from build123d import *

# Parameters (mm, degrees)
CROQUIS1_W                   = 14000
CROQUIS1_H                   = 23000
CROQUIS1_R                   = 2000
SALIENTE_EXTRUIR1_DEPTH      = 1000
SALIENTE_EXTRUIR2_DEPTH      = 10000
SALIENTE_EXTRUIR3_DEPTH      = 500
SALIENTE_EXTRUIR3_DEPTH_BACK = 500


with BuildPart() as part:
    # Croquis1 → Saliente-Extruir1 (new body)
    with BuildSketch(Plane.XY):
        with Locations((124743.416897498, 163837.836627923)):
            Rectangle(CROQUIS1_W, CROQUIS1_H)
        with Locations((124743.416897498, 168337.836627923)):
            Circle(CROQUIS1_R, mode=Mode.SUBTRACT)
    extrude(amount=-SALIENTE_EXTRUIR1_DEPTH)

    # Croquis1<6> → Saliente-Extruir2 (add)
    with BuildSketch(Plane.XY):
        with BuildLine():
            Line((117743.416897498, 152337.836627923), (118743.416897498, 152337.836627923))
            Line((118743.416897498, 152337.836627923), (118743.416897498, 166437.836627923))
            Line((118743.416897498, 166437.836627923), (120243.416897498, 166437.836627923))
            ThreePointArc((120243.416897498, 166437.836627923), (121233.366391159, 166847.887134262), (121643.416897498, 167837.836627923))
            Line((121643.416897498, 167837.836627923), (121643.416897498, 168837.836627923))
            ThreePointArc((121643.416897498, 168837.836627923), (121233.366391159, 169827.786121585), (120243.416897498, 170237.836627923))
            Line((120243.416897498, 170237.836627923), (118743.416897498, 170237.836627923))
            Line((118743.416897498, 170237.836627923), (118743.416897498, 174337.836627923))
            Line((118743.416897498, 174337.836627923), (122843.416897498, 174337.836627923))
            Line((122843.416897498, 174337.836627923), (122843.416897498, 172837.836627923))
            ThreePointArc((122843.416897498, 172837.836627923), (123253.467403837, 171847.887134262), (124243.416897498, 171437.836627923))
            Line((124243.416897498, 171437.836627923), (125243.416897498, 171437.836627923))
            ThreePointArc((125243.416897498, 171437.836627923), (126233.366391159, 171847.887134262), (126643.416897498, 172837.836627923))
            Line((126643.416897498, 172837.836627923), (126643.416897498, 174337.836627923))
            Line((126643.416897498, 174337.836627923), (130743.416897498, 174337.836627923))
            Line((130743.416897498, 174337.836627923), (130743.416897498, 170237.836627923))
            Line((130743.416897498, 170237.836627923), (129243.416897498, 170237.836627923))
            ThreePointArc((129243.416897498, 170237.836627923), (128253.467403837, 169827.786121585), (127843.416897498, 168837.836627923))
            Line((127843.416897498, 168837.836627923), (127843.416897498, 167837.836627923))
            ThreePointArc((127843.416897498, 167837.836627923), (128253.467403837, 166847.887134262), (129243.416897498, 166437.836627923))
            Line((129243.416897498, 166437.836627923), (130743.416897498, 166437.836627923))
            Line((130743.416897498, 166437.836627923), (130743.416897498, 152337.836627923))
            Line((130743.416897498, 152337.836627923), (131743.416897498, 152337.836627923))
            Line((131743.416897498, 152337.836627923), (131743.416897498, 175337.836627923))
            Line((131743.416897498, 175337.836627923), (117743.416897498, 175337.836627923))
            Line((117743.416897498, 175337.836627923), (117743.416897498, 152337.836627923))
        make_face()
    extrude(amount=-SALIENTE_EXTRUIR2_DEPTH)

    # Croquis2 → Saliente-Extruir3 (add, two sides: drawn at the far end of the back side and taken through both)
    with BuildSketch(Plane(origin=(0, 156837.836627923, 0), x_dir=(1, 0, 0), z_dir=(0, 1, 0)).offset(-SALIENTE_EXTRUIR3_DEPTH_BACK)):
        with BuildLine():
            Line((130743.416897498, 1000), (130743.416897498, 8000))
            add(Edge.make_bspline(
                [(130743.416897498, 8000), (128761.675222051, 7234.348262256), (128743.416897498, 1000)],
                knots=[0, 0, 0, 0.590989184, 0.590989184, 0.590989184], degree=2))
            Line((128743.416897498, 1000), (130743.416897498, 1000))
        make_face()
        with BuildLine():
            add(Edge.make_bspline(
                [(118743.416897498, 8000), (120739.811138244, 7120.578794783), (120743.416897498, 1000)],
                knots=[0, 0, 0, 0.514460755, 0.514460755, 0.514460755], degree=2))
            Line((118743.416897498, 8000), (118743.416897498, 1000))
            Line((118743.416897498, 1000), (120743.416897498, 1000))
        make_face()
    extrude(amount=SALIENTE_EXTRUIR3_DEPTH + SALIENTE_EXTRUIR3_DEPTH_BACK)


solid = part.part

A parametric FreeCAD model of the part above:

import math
import FreeCAD as App
import Part
import Sketcher
from FreeCAD import Vector
Q = App.Units.Quantity


def add_polygon(sketch, points):
    """Adds a closed chain of lines whose ends are joined by coincident constraints."""
    first, n = sketch.GeometryCount, len(points)
    for a, b in zip(points, points[1:] + points[:1]):
        sketch.addGeometry(Part.LineSegment(App.Vector(*a, 0), App.Vector(*b, 0)), False)
    for i in range(n):
        sketch.addConstraint(Sketcher.Constraint("Coincident", first + i, 2, first + (i + 1) % n, 1))

doc = App.newDocument("Part")
body = doc.addObject("PartDesign::Body", "Body")

# Sketch on XY plane
sketch1 = body.newObject("Sketcher::SketchObject", "Sketch")
sketch1.AttachmentSupport = (doc.getObject("XY_Plane"), [""])
sketch1.MapMode = "FlatFace"
add_polygon(sketch1, [(117743.416897, 175337.836628), (117743.416897, 152337.836628), (131743.416897, 152337.836628), (131743.416897, 175337.836628)])  # lines 0-3
sketch1.addGeometry(Part.Circle(Vector(124743.416897, 168337.836628, 0), Vector(0, 0, 1), 2000), False)  # 4
sketch1.addConstraint([
    Sketcher.Constraint("Vertical", 0),
    Sketcher.Constraint("Horizontal", 1),
    Sketcher.Constraint("Vertical", 2),
    Sketcher.Constraint("Horizontal", 3),
    Sketcher.Constraint("Diameter", 4, Q("4000 mm")),
    Sketcher.Constraint("DistanceX", 1, 1, 1, 2, Q("14000 mm")),
    Sketcher.Constraint("DistanceY", 0, 2, 0, 1, Q("23000 mm")),
    Sketcher.Constraint("DistanceX", 0, 2, 4, 3, Q("7000 mm")),
    Sketcher.Constraint("DistanceY", 0, 2, 4, 3, Q("16000 mm")),
    Sketcher.Constraint("DistanceX", -1, 1, 4, 3, Q("124743.416897 mm")),
    Sketcher.Constraint("DistanceY", -1, 1, 4, 3, Q("168337.836628 mm")),
])
pad1 = body.newObject("PartDesign::Pad", "Pad")
pad1.Profile = sketch1
pad1.Length = 1000
pad1.Reversed = True

# Sketch on XY plane
sketch2 = body.newObject("Sketcher::SketchObject", "Sketch001")
sketch2.AttachmentSupport = (doc.getObject("XY_Plane"), [""])
sketch2.MapMode = "FlatFace"
sketch2.addGeometry([
    Part.LineSegment(Vector(117743.416897, 152337.836628, 0), Vector(118743.416897, 152337.836628, 0)),  # 0
    Part.LineSegment(Vector(118743.416897, 152337.836628, 0), Vector(118743.416897, 166437.836628, 0)),  # 1
    Part.LineSegment(Vector(118743.416897, 166437.836628, 0), Vector(120243.416897, 166437.836628, 0)),  # 2
    Part.ArcOfCircle(Part.Circle(Vector(120243.416897, 167837.836628, 0), Vector(0, 0, 1), 1400), math.radians(-90), math.radians(0)),  # 3
    Part.LineSegment(Vector(121643.416897, 167837.836628, 0), Vector(121643.416897, 168837.836628, 0)),  # 4
    Part.ArcOfCircle(Part.Circle(Vector(120243.416897, 168837.836628, 0), Vector(0, 0, 1), 1400), math.radians(0), math.radians(90)),  # 5
    Part.LineSegment(Vector(120243.416897, 170237.836628, 0), Vector(118743.416897, 170237.836628, 0)),  # 6
    Part.LineSegment(Vector(118743.416897, 170237.836628, 0), Vector(118743.416897, 174337.836628, 0)),  # 7
    Part.LineSegment(Vector(118743.416897, 174337.836628, 0), Vector(122843.416897, 174337.836628, 0)),  # 8
    Part.LineSegment(Vector(122843.416897, 174337.836628, 0), Vector(122843.416897, 172837.836628, 0)),  # 9
    Part.ArcOfCircle(Part.Circle(Vector(124243.416897, 172837.836628, 0), Vector(0, 0, 1), 1400), math.radians(-180), math.radians(-90)),  # 10
    Part.LineSegment(Vector(124243.416897, 171437.836628, 0), Vector(125243.416897, 171437.836628, 0)),  # 11
    Part.ArcOfCircle(Part.Circle(Vector(125243.416897, 172837.836628, 0), Vector(0, 0, 1), 1400), math.radians(-90), math.radians(0)),  # 12
    Part.LineSegment(Vector(126643.416897, 172837.836628, 0), Vector(126643.416897, 174337.836628, 0)),  # 13
    Part.LineSegment(Vector(126643.416897, 174337.836628, 0), Vector(130743.416897, 174337.836628, 0)),  # 14
    Part.LineSegment(Vector(130743.416897, 174337.836628, 0), Vector(130743.416897, 170237.836628, 0)),  # 15
    Part.LineSegment(Vector(130743.416897, 170237.836628, 0), Vector(129243.416897, 170237.836628, 0)),  # 16
    Part.ArcOfCircle(Part.Circle(Vector(129243.416897, 168837.836628, 0), Vector(0, 0, 1), 1400), math.radians(90), math.radians(180)),  # 17
    Part.LineSegment(Vector(127843.416897, 168837.836628, 0), Vector(127843.416897, 167837.836628, 0)),  # 18
    Part.ArcOfCircle(Part.Circle(Vector(129243.416897, 167837.836628, 0), Vector(0, 0, 1), 1400), math.radians(-180), math.radians(-90)),  # 19
    Part.LineSegment(Vector(129243.416897, 166437.836628, 0), Vector(130743.416897, 166437.836628, 0)),  # 20
    Part.LineSegment(Vector(130743.416897, 166437.836628, 0), Vector(130743.416897, 152337.836628, 0)),  # 21
    Part.LineSegment(Vector(130743.416897, 152337.836628, 0), Vector(131743.416897, 152337.836628, 0)),  # 22
    Part.LineSegment(Vector(131743.416897, 152337.836628, 0), Vector(131743.416897, 175337.836628, 0)),  # 23
    Part.LineSegment(Vector(131743.416897, 175337.836628, 0), Vector(117743.416897, 175337.836628, 0)),  # 24
    Part.LineSegment(Vector(117743.416897, 175337.836628, 0), Vector(117743.416897, 152337.836628, 0)),  # 25
], False)
sketch2.addConstraint([
    Sketcher.Constraint("Coincident", 0, 2, 1, 1),
    Sketcher.Constraint("Coincident", 1, 2, 2, 1),
    Sketcher.Constraint("Coincident", 2, 2, 3, 1),
    Sketcher.Constraint("Coincident", 3, 2, 4, 1),
    Sketcher.Constraint("Coincident", 4, 2, 5, 1),
    Sketcher.Constraint("Coincident", 5, 2, 6, 1),
    Sketcher.Constraint("Coincident", 6, 2, 7, 1),
    Sketcher.Constraint("Coincident", 7, 2, 8, 1),
    Sketcher.Constraint("Coincident", 8, 2, 9, 1),
    Sketcher.Constraint("Coincident", 9, 2, 10, 1),
    Sketcher.Constraint("Coincident", 10, 2, 11, 1),
    Sketcher.Constraint("Coincident", 11, 2, 12, 1),
    Sketcher.Constraint("Coincident", 12, 2, 13, 1),
    Sketcher.Constraint("Coincident", 13, 2, 14, 1),
    Sketcher.Constraint("Coincident", 14, 2, 15, 1),
    Sketcher.Constraint("Coincident", 15, 2, 16, 1),
    Sketcher.Constraint("Coincident", 16, 2, 17, 1),
    Sketcher.Constraint("Coincident", 17, 2, 18, 1),
    Sketcher.Constraint("Coincident", 18, 2, 19, 1),
    Sketcher.Constraint("Coincident", 19, 2, 20, 1),
    Sketcher.Constraint("Coincident", 20, 2, 21, 1),
    Sketcher.Constraint("Coincident", 21, 2, 22, 1),
    Sketcher.Constraint("Coincident", 22, 2, 23, 1),
    Sketcher.Constraint("Coincident", 23, 2, 24, 1),
    Sketcher.Constraint("Coincident", 24, 2, 25, 1),
    Sketcher.Constraint("Coincident", 25, 2, 0, 1),
    Sketcher.Constraint("Horizontal", 0),
    Sketcher.Constraint("Vertical", 1),
    Sketcher.Constraint("Horizontal", 2),
    Sketcher.Constraint("Vertical", 4),
    Sketcher.Constraint("Horizontal", 6),
    Sketcher.Constraint("Vertical", 7),
    Sketcher.Constraint("Horizontal", 8),
    Sketcher.Constraint("Vertical", 9),
    Sketcher.Constraint("Horizontal", 11),
    Sketcher.Constraint("Vertical", 13),
    Sketcher.Constraint("Horizontal", 14),
    Sketcher.Constraint("Vertical", 15),
    Sketcher.Constraint("Horizontal", 16),
    Sketcher.Constraint("Vertical", 18),
    Sketcher.Constraint("Horizontal", 20),
    Sketcher.Constraint("Vertical", 21),
    Sketcher.Constraint("Horizontal", 22),
    Sketcher.Constraint("Vertical", 23),
    Sketcher.Constraint("Horizontal", 24),
    Sketcher.Constraint("Vertical", 25),
    Sketcher.Constraint("Equal", 3, 5),
    Sketcher.Constraint("Equal", 5, 10),
    Sketcher.Constraint("Equal", 10, 12),
    Sketcher.Constraint("Equal", 12, 17),
    Sketcher.Constraint("Equal", 17, 19),
    Sketcher.Constraint("Horizontal", 5, 3, 17, 3),
    Sketcher.Constraint("Horizontal", 3, 3, 19, 3),
    Sketcher.Constraint("Horizontal", 17, 3, 4, 2),
    Sketcher.Constraint("Horizontal", 12, 3, 9, 2),
    Sketcher.Constraint("Horizontal", 8, 2, 13, 2),
    Sketcher.Constraint("Horizontal", 0, 2, 21, 2),
    Sketcher.Constraint("Vertical", 5, 3, 2, 2),
    Sketcher.Constraint("Vertical", 1, 2, 6, 2),
    Sketcher.Constraint("Vertical", 12, 3, 11, 2),
    Sketcher.Constraint("Vertical", 19, 3, 16, 2),
    Sketcher.Constraint("Vertical", 15, 2, 20, 2),
    Sketcher.Constraint("Equal", 2, 6),
    Sketcher.Constraint("Equal", 0, 11),
    Sketcher.Constraint("Equal", 8, 14),
    Sketcher.Constraint("Equal", 6, 16),
    Sketcher.Constraint("Equal", 16, 20),
    Sketcher.Constraint("Equal", 11, 22),
    Sketcher.Constraint("Equal", 22, 4),
    Sketcher.Constraint("Equal", 14, 7),
    Sketcher.Constraint("Equal", 20, 9),
    Sketcher.Constraint("Equal", 9, 13),
    Sketcher.Constraint("Equal", 4, 18),
    Sketcher.Constraint("Radius", 3, Q("1400 mm")),
    Sketcher.Constraint("DistanceX", 0, 1, 0, 2, Q("1000 mm")),
    Sketcher.Constraint("DistanceX", 2, 1, 2, 2, Q("1500 mm")),
    Sketcher.Constraint("DistanceX", 8, 1, 8, 2, Q("4100 mm")),
    Sketcher.Constraint("DistanceX", 24, 2, 24, 1, Q("14000 mm")),
    Sketcher.Constraint("DistanceY", 1, 1, 1, 2, Q("14100 mm")),
    Sketcher.Constraint("DistanceY", 23, 1, 23, 2, Q("23000 mm")),
    Sketcher.Constraint("DistanceY", 3, 3, 5, 3, Q("1000 mm")),
    Sketcher.Constraint("DistanceY", 18, 2, 17, 3, Q("1000 mm")),
    Sketcher.Constraint("DistanceX", -1, 1, 3, 3, Q("120243.416897 mm")),
    Sketcher.Constraint("DistanceY", -1, 1, 3, 3, Q("167837.836628 mm")),
])
pad2 = body.newObject("PartDesign::Pad", "Pad001")
pad2.Profile = sketch2
pad2.Length = 10000
pad2.Reversed = True

# Sketch on XZ plane
sketch3 = body.newObject("Sketcher::SketchObject", "Sketch002")
sketch3.AttachmentSupport = (doc.getObject("XZ_Plane"), [""])
sketch3.MapMode = "FlatFace"
sketch3.AttachmentOffset = App.Placement(Vector(0, 0, -156837.836628), App.Rotation())
sketch3.addGeometry([
    Part.LineSegment(Vector(130743.416897, -1000, 0), Vector(130743.416897, -8000, 0)),  # 0
    Part.BSplineCurve([Vector(130743.416897, -8000, 0), Vector(128761.675222, -7234.348262, 0), Vector(128743.416897, -1000, 0)], [3, 3], [0, 0.590989184], False, 2, [1, 1, 1], False),  # 1
    Part.LineSegment(Vector(128743.416897, -1000, 0), Vector(130743.416897, -1000, 0)),  # 2
    Part.BSplineCurve([Vector(118743.416897, -8000, 0), Vector(120739.811138, -7120.578795, 0), Vector(120743.416897, -1000, 0)], [3, 3], [0, 0.514460755], False, 2, [1, 1, 1], False),  # 3
    Part.LineSegment(Vector(118743.416897, -8000, 0), Vector(118743.416897, -1000, 0)),  # 4
    Part.LineSegment(Vector(118743.416897, -1000, 0), Vector(120743.416897, -1000, 0)),  # 5
], False)
sketch3.addConstraint([
    Sketcher.Constraint("Block", 1),
    Sketcher.Constraint("Block", 3),
    Sketcher.Constraint("Coincident", 0, 2, 1, 1),
    Sketcher.Constraint("Coincident", 1, 2, 2, 1),
    Sketcher.Constraint("Coincident", 2, 2, 0, 1),
    Sketcher.Constraint("Coincident", 3, 1, 4, 1),
    Sketcher.Constraint("Coincident", 4, 2, 5, 1),
    Sketcher.Constraint("Coincident", 5, 2, 3, 2),
    Sketcher.Constraint("Vertical", 0),
    Sketcher.Constraint("Horizontal", 2),
    Sketcher.Constraint("Vertical", 4),
    Sketcher.Constraint("Horizontal", 5),
])
pad3 = body.newObject("PartDesign::Pad", "Pad002")
pad3.Profile = sketch3
pad3.Type = "TwoLengths"
pad3.Length = 500
pad3.Length2 = 500
pad3.Reversed = True

doc.recompute()
